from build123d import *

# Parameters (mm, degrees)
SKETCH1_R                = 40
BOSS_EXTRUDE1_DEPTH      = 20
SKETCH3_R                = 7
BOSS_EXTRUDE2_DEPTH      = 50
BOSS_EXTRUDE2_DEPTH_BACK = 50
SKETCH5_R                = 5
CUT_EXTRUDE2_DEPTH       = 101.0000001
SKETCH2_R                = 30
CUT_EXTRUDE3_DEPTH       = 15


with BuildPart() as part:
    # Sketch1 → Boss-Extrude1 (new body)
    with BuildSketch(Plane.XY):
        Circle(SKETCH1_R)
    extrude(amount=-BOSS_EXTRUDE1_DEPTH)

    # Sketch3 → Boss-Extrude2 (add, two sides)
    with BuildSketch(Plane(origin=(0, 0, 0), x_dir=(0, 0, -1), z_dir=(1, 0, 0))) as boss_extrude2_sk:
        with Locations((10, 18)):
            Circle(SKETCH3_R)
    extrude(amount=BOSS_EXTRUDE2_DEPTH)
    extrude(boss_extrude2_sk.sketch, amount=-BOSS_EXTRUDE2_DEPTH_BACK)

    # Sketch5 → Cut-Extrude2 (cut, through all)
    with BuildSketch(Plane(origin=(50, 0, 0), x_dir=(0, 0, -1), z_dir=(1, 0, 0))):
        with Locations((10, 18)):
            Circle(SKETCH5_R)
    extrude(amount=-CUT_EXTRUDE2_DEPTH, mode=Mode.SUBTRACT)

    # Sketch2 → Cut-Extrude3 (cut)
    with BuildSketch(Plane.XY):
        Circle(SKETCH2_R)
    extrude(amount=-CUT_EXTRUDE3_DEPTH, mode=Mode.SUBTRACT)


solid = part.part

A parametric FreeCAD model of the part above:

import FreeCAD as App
import Part
import Sketcher
from FreeCAD import Vector
Q = App.Units.Quantity

doc = App.newDocument("Part")
params = doc.addObject("Spreadsheet::Sheet", "Params")
for row, (alias, value) in enumerate([
    ("sketch1_diameter", "80 mm"),
    ("pad1_length", "20 mm"),
    ("sketch2_diameter", "14 mm"),
    ("pad2_length", "50 mm"),
    ("pad2_length2", "50 mm"),
    ("sketch3_diameter", "10 mm"),
    ("sketch4_diameter", "60 mm"),
    ("pocket2_length", "15 mm"),
], start=1):
    params.set(f"A{row}", alias)
    params.set(f"B{row}", "=" + value)
    params.setAlias(f"B{row}", alias)

body = doc.addObject("PartDesign::Body", "Body")

# Sketch on XY plane
sketch1 = doc.addObject("Sketcher::SketchObject", "Sketch")
body.addObject(sketch1)
sketch1.AttachmentSupport = (doc.XY_Plane, [""])
sketch1.MapMode = "FlatFace"
sketch1.addGeometry(Part.Circle(Vector(0, 0, 0), Vector(0, 0, 1), 40), False)
sketch1.addConstraint([
    Sketcher.Constraint("Coincident", 0, 3, -1, 1),
    Sketcher.Constraint("Diameter", 0, Q("80 mm")),
])
sketch1.setExpression("Constraints[1]", "Params.sketch1_diameter")
pad1 = doc.addObject("PartDesign::Pad", "Pad")
body.addObject(pad1)
pad1.Profile = sketch1
pad1.setExpression("Length", "Params.pad1_length")
pad1.Reversed = True

# Sketch on YZ plane
sketch2 = doc.addObject("Sketcher::SketchObject", "Sketch001")
body.addObject(sketch2)
sketch2.AttachmentSupport = (doc.YZ_Plane, [""])
sketch2.MapMode = "FlatFace"
sketch2.addGeometry(Part.Circle(Vector(18, -10, 0), Vector(0, 0, 1), 7), False)
sketch2.addConstraint([
    Sketcher.Constraint("Diameter", 0, Q("14 mm")),
    Sketcher.Constraint("DistanceX", -1, 1, 0, 3, Q("18 mm")),
    Sketcher.Constraint("DistanceY", 0, 3, -1, 1, Q("10 mm")),
])
sketch2.setExpression("Constraints[0]", "Params.sketch2_diameter")
pad2 = doc.addObject("PartDesign::Pad", "Pad001")
body.addObject(pad2)
pad2.Profile = sketch2
pad2.Type = "TwoLengths"
pad2.setExpression("Length", "Params.pad2_length")
pad2.setExpression("Length2", "Params.pad2_length2")

# Sketch on YZ plane
sketch3 = doc.addObject("Sketcher::SketchObject", "Sketch002")
body.addObject(sketch3)
sketch3.AttachmentSupport = (doc.YZ_Plane, [""])
sketch3.MapMode = "FlatFace"
sketch3.AttachmentOffset = App.Placement(Vector(0, 0, 50), App.Rotation())
sketch3.addGeometry(Part.Circle(Vector(18, -10, 0), Vector(0, 0, 1), 5), False)
sketch3.addConstraint([
    Sketcher.Constraint("Diameter", 0, Q("10 mm")),
    Sketcher.Constraint("DistanceX", -1, 1, 0, 3, Q("18 mm")),
    Sketcher.Constraint("DistanceY", 0, 3, -1, 1, Q("10 mm")),
])
sketch3.setExpression("Constraints[0]", "Params.sketch3_diameter")
pocket1 = doc.addObject("PartDesign::Pocket", "Pocket")
body.addObject(pocket1)
pocket1.Profile = sketch3
pocket1.Type = "ThroughAll"

# Sketch on XY plane
sketch4 = doc.addObject("Sketcher::SketchObject", "Sketch003")
body.addObject(sketch4)
sketch4.AttachmentSupport = (doc.XY_Plane, [""])
sketch4.MapMode = "FlatFace"
sketch4.addGeometry(Part.Circle(Vector(0, 0, 0), Vector(0, 0, 1), 30), False)
sketch4.addConstraint([
    Sketcher.Constraint("Coincident", 0, 3, -1, 1),
    Sketcher.Constraint("Diameter", 0, Q("60 mm")),
])
sketch4.setExpression("Constraints[1]", "Params.sketch4_diameter")
pocket2 = doc.addObject("PartDesign::Pocket", "Pocket001")
body.addObject(pocket2)
pocket2.Profile = sketch4
pocket2.setExpression("Length", "Params.pocket2_length")

doc.recompute()
